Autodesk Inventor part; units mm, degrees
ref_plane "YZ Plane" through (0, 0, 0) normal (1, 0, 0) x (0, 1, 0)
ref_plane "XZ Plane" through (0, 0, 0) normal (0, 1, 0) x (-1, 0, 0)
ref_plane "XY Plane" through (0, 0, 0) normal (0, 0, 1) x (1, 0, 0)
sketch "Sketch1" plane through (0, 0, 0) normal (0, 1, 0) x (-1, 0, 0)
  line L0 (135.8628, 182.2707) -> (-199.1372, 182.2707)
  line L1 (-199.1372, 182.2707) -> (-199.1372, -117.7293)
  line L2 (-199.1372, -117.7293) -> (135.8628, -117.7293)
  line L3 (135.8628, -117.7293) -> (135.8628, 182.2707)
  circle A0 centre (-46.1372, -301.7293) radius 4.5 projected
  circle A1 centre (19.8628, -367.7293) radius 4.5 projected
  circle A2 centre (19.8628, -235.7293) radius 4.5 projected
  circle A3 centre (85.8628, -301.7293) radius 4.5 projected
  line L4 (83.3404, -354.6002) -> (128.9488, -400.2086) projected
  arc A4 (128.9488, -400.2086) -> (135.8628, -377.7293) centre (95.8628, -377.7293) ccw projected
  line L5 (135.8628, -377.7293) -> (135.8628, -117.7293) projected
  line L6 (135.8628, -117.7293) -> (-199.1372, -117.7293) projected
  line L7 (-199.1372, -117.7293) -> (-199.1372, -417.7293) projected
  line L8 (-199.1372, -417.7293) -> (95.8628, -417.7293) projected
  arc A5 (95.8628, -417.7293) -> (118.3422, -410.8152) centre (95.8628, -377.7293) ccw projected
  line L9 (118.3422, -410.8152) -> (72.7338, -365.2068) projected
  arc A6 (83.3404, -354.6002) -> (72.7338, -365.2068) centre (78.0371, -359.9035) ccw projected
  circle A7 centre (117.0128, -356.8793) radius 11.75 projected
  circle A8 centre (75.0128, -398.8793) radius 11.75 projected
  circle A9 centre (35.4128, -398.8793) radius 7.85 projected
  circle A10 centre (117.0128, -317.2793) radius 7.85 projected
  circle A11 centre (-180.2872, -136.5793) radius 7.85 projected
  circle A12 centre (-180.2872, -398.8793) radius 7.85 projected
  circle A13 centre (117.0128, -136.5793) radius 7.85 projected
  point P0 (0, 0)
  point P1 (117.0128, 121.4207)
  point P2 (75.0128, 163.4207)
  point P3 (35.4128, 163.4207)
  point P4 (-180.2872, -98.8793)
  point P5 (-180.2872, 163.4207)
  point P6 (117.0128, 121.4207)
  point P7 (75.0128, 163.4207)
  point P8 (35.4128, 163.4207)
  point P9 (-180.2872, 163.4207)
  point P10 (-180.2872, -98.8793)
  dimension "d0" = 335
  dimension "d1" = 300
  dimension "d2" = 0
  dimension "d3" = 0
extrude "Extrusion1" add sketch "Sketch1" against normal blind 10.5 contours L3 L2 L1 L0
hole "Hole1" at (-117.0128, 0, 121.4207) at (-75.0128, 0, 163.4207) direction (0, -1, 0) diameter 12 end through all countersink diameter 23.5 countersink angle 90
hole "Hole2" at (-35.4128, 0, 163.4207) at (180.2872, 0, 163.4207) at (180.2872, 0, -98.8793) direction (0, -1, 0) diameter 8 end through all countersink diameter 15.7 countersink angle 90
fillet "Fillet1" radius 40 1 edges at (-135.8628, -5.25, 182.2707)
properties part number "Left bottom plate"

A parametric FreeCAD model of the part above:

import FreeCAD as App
import Part
import Sketcher
Q = App.Units.Quantity


def edges_at(feature, points):
    """Names of the edges that pass closest to the given points."""
    edges = feature.Shape.Edges
    near = lambda p: min(range(len(edges)), key=lambda i: edges[i].distToShape(Part.Vertex(*p))[0])
    return sorted({f"Edge{near(p) + 1}" for p in points})


def add_polygon(sketch, points):
    """Adds a closed chain of lines whose ends are joined by coincident constraints."""
    first, n = sketch.GeometryCount, len(points)
    for a, b in zip(points, points[1:] + points[:1]):
        sketch.addGeometry(Part.LineSegment(App.Vector(*a, 0), App.Vector(*b, 0)), False)
    for i in range(n):
        sketch.addConstraint(Sketcher.Constraint("Coincident", first + i, 2, first + (i + 1) % n, 1))

doc = App.newDocument("Part")
body = doc.addObject("PartDesign::Body", "Body")

sketch1 = doc.addObject("Sketcher::SketchObject", "Sketch")
body.addObject(sketch1)
sketch1.AttachmentSupport = (doc.XZ_Plane, [""])
sketch1.MapMode = "FlatFace"
add_polygon(sketch1, [(-135.8628, -117.7293), (-135.8628, 182.2707), (199.1372, 182.2707), (199.1372, -117.7293)])
sketch1.addConstraint(Sketcher.Constraint("Vertical", 0))
sketch1.addConstraint(Sketcher.Constraint("Horizontal", 1))
sketch1.addConstraint(Sketcher.Constraint("Vertical", 2))
sketch1.addConstraint(Sketcher.Constraint("Horizontal", 3))
sketch1.addConstraint(Sketcher.Constraint("DistanceX", 1, 1, 1, 2, Q("335 mm")))
sketch1.addConstraint(Sketcher.Constraint("DistanceY", 0, 1, 0, 2, Q("300 mm")))
sketch1.addConstraint(Sketcher.Constraint("DistanceX", 0, 2, -1, 1, Q("135.8628 mm")))
sketch1.addConstraint(Sketcher.Constraint("DistanceY", -1, 1, 0, 2, Q("182.2707 mm")))
pad1 = doc.addObject("PartDesign::Pad", "Pad")
body.addObject(pad1)
pad1.Profile = sketch1
pad1.Length = 10.5

sketch2 = doc.addObject("Sketcher::SketchObject", "Sketch001")
body.addObject(sketch2)
sketch2.AttachmentSupport = (doc.XZ_Plane, [""])
sketch2.MapMode = "FlatFace"
sketch2.addGeometry(Part.Circle(App.Vector(-117.0128, 121.4207, 0), App.Vector(0, 0, 1), 6), False)
sketch2.addGeometry(Part.Circle(App.Vector(-75.0128, 163.4207, 0), App.Vector(0, 0, 1), 6), False)
sketch2.addConstraint(Sketcher.Constraint("Equal", 0, 1))
sketch2.addConstraint(Sketcher.Constraint("Diameter", 0, Q("12 mm")))
sketch2.addConstraint(Sketcher.Constraint("DistanceX", 0, 3, 1, 3, Q("42 mm")))
sketch2.addConstraint(Sketcher.Constraint("DistanceY", 0, 3, 1, 3, Q("42 mm")))
sketch2.addConstraint(Sketcher.Constraint("DistanceX", 0, 3, -1, 1, Q("117.0128 mm")))
sketch2.addConstraint(Sketcher.Constraint("DistanceY", -1, 1, 0, 3, Q("121.4207 mm")))
doc.recompute()
hole = doc.addObject("PartDesign::Hole", "Hole")
body.addObject(hole)
hole.Profile = sketch2
hole.ThreadType = "None"
hole.Diameter = 12
hole.DepthType = "ThroughAll"
hole.HoleCutType = "Countersink"
hole.HoleCutDiameter = 23.5
hole.HoleCutCountersinkAngle = 90
hole.Reversed = True

sketch3 = doc.addObject("Sketcher::SketchObject", "Sketch002")
body.addObject(sketch3)
sketch3.AttachmentSupport = (doc.XZ_Plane, [""])
sketch3.MapMode = "FlatFace"
sketch3.addGeometry(Part.Circle(App.Vector(-35.4128, 163.4207, 0), App.Vector(0, 0, 1), 4), False)
sketch3.addGeometry(Part.Circle(App.Vector(180.2872, 163.4207, 0), App.Vector(0, 0, 1), 4), False)
sketch3.addGeometry(Part.Circle(App.Vector(180.2872, -98.8793, 0), App.Vector(0, 0, 1), 4), False)
sketch3.addConstraint(Sketcher.Constraint("Equal", 0, 1))
sketch3.addConstraint(Sketcher.Constraint("Equal", 1, 2))
sketch3.addConstraint(Sketcher.Constraint("Horizontal", 0, 3, 1, 3))
sketch3.addConstraint(Sketcher.Constraint("Vertical", 1, 3, 2, 3))
sketch3.addConstraint(Sketcher.Constraint("Diameter", 0, Q("8 mm")))
sketch3.addConstraint(Sketcher.Constraint("DistanceX", 0, 3, 1, 3, Q("215.7 mm")))
sketch3.addConstraint(Sketcher.Constraint("DistanceY", 2, 3, 1, 3, Q("262.3 mm")))
sketch3.addConstraint(Sketcher.Constraint("DistanceX", 0, 3, -1, 1, Q("35.4128 mm")))
sketch3.addConstraint(Sketcher.Constraint("DistanceY", -1, 1, 0, 3, Q("163.4207 mm")))
doc.recompute()
hole2 = doc.addObject("PartDesign::Hole", "Hole001")
body.addObject(hole2)
hole2.Profile = sketch3
hole2.ThreadType = "None"
hole2.Diameter = 8
hole2.DepthType = "ThroughAll"
hole2.HoleCutType = "Countersink"
hole2.HoleCutDiameter = 15.7
hole2.HoleCutCountersinkAngle = 90
hole2.Reversed = True
doc.recompute()

fillet = doc.addObject("PartDesign::Fillet", "Fillet")
body.addObject(fillet)
fillet.Base = (hole2, edges_at(hole2, [(-135.863, -5.25, 182.271)]))
fillet.Radius = 40

doc.recompute()
